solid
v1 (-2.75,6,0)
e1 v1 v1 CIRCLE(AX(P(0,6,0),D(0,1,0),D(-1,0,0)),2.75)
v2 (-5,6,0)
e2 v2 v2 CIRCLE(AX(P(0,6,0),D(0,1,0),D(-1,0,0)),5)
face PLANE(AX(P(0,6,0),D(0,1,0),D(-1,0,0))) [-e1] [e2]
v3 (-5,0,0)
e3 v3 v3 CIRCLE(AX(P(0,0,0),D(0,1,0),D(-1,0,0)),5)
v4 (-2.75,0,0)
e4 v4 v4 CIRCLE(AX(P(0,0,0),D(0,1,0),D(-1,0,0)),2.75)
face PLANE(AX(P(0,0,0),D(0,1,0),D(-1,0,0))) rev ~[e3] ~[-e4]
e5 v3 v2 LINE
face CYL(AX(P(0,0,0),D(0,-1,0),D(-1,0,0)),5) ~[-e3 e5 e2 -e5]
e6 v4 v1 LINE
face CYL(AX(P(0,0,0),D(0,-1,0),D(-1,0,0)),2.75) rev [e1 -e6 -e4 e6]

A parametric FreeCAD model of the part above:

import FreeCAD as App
import Part
import Sketcher

doc = App.newDocument("Part")
params = doc.addObject("Spreadsheet::Sheet", "Params")
for row, (alias, value) in enumerate([
    ("sketch1_diameter", "10 mm"),
    ("sketch1_diameter2", "5.5 mm"),
    ("pad1_length", "6 mm"),
], start=1):
    params.set(f"A{row}", alias)
    params.set(f"B{row}", "=" + value)
    params.setAlias(f"B{row}", alias)

body = doc.addObject("PartDesign::Body", "Body")

sketch1 = body.newObject("Sketcher::SketchObject", "Sketch")
sketch1.AttachmentSupport = (doc.getObject("XZ_Plane"), [""])
sketch1.MapMode = "FlatFace"
sketch1.addGeometry(Part.Circle(App.Vector(0, 0, 0), App.Vector(0, 0, 1), 5), False)
sketch1.addGeometry(Part.Circle(App.Vector(0, 0, 0), App.Vector(0, 0, 1), 2.8), False)
sketch1.addConstraint(Sketcher.Constraint("Coincident", 0, 3, -1, 1))
sketch1.addConstraint(Sketcher.Constraint("Coincident", 1, 3, -1, 1))
sketch1.addConstraint(Sketcher.Constraint("Diameter", 0, 10.0))
sketch1.addConstraint(Sketcher.Constraint("Diameter", 1, 5.5))
sketch1.setExpression("Constraints[2]", "Params.sketch1_diameter")
sketch1.setExpression("Constraints[3]", "Params.sketch1_diameter2")
pad1 = body.newObject("PartDesign::Pad", "Pad")
pad1.Profile = sketch1
pad1.setExpression("Length", "Params.pad1_length")
pad1.Reversed = True

doc.recompute()
